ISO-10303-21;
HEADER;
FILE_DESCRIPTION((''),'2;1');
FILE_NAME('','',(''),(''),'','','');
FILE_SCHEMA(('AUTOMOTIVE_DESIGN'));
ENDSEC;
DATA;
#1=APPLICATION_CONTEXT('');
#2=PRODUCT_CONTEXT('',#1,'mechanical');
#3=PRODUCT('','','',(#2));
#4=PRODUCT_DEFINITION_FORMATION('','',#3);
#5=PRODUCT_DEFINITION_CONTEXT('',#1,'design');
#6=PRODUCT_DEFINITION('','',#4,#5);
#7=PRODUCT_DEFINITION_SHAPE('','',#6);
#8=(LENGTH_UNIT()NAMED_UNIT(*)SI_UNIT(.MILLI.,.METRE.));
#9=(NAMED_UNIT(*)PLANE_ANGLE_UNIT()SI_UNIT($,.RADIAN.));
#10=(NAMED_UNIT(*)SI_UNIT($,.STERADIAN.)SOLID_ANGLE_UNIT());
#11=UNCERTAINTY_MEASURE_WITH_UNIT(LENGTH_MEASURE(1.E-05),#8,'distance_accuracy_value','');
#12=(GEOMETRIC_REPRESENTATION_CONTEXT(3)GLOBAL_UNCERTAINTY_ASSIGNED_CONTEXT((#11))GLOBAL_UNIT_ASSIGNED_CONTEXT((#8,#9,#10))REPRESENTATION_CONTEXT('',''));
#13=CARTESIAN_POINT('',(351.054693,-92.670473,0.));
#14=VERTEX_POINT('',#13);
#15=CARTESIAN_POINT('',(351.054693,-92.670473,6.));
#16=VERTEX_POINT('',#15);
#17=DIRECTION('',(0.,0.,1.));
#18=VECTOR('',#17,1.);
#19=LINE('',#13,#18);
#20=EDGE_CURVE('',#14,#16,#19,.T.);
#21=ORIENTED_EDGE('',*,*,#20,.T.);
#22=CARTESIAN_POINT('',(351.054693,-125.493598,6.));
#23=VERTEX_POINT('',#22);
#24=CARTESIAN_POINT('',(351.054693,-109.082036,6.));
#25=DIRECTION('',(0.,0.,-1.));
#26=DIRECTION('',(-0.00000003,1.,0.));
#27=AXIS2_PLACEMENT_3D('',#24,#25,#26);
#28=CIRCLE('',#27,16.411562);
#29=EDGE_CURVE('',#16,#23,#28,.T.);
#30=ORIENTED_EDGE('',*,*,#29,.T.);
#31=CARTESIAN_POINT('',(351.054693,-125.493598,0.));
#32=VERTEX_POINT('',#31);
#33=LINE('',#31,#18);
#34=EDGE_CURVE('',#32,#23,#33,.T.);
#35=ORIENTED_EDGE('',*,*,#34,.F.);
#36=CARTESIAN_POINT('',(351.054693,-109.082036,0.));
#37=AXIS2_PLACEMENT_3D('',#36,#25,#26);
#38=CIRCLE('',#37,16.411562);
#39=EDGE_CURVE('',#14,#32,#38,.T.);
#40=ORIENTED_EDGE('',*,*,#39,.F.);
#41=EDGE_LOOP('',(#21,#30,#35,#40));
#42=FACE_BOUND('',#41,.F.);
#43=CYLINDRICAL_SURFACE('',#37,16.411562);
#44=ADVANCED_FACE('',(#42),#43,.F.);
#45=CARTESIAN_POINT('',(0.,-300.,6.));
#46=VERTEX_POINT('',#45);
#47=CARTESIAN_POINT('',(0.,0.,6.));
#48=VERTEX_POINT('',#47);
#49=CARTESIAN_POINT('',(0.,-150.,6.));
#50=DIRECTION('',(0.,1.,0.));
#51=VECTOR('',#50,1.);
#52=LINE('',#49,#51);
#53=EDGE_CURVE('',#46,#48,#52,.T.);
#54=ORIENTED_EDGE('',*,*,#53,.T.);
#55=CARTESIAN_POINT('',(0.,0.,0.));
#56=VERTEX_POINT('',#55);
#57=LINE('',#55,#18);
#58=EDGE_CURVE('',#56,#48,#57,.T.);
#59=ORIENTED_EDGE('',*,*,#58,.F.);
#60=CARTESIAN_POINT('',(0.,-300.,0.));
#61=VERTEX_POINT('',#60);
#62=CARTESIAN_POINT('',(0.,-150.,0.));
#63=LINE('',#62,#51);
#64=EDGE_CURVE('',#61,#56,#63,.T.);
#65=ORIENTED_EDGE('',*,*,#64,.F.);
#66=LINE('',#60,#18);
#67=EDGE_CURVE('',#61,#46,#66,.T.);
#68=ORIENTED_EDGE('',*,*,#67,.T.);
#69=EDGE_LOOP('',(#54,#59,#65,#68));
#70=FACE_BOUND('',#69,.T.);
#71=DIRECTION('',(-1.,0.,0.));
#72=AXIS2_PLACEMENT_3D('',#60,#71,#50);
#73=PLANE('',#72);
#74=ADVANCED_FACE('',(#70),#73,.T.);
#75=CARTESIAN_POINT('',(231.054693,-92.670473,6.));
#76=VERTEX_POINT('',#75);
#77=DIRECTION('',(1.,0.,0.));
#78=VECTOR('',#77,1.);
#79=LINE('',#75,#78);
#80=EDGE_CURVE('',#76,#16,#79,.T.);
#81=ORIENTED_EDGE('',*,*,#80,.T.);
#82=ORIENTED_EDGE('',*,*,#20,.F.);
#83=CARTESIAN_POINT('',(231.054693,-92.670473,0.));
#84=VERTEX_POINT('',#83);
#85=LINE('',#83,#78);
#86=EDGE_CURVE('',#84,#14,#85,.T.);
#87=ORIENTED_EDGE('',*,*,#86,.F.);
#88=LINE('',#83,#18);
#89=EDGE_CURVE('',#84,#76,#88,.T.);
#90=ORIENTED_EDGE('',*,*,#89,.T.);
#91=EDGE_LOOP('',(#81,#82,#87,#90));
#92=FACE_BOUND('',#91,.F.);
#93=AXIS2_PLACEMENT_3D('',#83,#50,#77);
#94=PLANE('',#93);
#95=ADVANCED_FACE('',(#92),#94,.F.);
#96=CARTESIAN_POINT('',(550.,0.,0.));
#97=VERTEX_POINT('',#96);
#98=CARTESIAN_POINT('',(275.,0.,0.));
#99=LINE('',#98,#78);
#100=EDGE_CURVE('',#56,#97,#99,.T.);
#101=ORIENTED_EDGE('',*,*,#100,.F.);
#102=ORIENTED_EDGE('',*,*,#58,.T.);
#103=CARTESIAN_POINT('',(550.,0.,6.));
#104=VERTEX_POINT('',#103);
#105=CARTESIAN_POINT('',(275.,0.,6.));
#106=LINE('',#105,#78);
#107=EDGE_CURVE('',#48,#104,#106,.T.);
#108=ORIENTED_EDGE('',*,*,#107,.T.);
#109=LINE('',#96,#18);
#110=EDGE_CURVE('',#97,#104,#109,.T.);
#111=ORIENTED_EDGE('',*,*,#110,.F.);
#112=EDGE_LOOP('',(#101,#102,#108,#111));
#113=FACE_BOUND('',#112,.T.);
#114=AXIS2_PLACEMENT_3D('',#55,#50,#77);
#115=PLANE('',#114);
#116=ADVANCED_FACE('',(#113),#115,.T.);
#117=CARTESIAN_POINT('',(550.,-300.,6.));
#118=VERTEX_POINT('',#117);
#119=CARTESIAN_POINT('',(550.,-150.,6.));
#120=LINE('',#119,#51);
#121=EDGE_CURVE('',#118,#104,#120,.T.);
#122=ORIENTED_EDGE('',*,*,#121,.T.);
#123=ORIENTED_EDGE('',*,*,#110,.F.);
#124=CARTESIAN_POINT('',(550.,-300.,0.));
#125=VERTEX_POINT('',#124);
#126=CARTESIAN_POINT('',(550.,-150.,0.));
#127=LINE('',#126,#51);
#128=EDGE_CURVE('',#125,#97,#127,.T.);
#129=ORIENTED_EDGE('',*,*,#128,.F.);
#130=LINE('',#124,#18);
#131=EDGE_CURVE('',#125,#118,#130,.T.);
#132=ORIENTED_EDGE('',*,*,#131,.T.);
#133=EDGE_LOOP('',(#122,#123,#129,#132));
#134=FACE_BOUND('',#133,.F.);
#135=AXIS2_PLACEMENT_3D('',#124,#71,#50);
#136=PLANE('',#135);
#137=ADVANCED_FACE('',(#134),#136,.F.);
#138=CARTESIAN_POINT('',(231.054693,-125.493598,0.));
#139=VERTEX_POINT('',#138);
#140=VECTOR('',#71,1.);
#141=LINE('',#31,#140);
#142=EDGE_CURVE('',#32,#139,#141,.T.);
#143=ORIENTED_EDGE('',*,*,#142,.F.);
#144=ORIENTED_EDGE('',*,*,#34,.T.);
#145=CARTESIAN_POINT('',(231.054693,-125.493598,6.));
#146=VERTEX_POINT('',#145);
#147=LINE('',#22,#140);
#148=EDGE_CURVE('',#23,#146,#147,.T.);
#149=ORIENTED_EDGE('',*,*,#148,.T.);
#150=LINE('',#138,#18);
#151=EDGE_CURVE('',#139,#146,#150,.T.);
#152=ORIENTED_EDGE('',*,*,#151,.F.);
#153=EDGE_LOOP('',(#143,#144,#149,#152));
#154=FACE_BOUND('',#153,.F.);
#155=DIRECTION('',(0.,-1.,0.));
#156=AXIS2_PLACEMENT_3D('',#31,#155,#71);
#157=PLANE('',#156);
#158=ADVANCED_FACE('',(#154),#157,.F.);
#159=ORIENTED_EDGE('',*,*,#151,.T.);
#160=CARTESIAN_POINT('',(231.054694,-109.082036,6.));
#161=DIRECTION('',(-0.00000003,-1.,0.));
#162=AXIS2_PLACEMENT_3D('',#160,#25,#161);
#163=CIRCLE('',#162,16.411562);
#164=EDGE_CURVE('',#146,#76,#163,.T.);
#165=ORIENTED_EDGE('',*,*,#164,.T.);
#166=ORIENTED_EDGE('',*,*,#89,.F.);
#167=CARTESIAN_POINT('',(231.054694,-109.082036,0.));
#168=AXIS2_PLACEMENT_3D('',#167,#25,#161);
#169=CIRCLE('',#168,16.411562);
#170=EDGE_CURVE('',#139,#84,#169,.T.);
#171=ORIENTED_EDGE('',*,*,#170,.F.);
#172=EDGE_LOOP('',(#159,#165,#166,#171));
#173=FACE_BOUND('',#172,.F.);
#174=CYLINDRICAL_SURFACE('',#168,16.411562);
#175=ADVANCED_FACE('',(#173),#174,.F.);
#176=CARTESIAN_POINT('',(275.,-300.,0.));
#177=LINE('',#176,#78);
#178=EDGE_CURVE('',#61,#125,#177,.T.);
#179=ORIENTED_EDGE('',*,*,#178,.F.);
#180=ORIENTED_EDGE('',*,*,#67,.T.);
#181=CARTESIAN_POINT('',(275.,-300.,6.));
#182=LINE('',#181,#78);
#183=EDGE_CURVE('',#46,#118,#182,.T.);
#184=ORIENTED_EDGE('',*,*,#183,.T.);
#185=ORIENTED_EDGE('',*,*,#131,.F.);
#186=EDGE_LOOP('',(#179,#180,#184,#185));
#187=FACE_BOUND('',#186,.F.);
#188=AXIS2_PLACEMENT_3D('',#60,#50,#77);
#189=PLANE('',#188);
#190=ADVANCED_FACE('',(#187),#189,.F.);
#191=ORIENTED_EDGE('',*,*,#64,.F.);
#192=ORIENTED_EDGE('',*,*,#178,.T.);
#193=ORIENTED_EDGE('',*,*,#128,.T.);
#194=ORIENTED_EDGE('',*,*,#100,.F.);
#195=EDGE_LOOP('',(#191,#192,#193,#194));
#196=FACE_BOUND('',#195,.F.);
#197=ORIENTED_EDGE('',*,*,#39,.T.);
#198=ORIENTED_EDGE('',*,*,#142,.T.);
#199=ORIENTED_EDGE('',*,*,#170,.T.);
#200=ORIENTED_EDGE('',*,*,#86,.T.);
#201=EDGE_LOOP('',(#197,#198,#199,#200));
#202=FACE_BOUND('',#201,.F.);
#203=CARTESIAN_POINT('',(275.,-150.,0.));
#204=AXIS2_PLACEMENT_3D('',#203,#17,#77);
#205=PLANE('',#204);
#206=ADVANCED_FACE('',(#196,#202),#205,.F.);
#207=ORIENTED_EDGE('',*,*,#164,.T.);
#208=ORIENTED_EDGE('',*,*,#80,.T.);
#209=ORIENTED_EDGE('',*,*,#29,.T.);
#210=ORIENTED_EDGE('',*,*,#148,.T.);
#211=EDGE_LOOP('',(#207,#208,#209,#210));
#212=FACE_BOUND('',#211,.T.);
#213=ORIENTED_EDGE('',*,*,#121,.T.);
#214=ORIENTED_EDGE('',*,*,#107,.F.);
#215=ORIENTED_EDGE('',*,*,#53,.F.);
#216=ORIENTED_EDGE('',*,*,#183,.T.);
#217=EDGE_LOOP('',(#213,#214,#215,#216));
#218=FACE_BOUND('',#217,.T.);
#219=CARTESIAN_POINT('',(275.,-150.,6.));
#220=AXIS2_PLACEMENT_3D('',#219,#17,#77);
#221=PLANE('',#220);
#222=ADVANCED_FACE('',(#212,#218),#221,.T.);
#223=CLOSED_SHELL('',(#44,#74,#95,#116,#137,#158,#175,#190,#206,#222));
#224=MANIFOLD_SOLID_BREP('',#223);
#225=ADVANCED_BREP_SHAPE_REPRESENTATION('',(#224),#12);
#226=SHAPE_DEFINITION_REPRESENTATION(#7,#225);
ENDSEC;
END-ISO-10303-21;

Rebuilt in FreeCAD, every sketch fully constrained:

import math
import FreeCAD as App
import Part
import Sketcher
from FreeCAD import Vector
Q = App.Units.Quantity


def add_polygon(sketch, points):
    """Adds a closed chain of lines whose ends are joined by coincident constraints."""
    first, n = sketch.GeometryCount, len(points)
    for a, b in zip(points, points[1:] + points[:1]):
        sketch.addGeometry(Part.LineSegment(App.Vector(*a, 0), App.Vector(*b, 0)), False)
    for i in range(n):
        sketch.addConstraint(Sketcher.Constraint("Coincident", first + i, 2, first + (i + 1) % n, 1))

doc = App.newDocument("Part")
params = doc.addObject("Spreadsheet::Sheet", "Params")
for row, (alias, value) in enumerate([
    ("sketch1_width", "550 mm"),
    ("sketch1_width2", "120 mm"),
    ("sketch1_height", "300 mm"),
    ("pad1_length", "6 mm"),
], start=1):
    params.set(f"A{row}", alias)
    params.set(f"B{row}", "=" + value)
    params.setAlias(f"B{row}", alias)

body = doc.addObject("PartDesign::Body", "Body")

# Sketch on XY plane
sketch1 = doc.addObject("Sketcher::SketchObject", "Sketch")
body.addObject(sketch1)
sketch1.AttachmentSupport = (doc.XY_Plane, [""])
sketch1.MapMode = "FlatFace"
add_polygon(sketch1, [(0, 0), (0, -300), (550, -300), (550, 0)])  # lines 0-3
sketch1.addGeometry(Part.LineSegment(Vector(351.054693, -125.493598, 0), Vector(231.054693, -125.493598, 0)), False)  # 4
sketch1.addGeometry(Part.ArcOfCircle(Part.Circle(Vector(231.054694, -109.082036, 0), Vector(0, 0, 1), 16.411562), math.radians(90.000002), math.radians(269.999998)), False)  # 5
sketch1.addGeometry(Part.LineSegment(Vector(231.054693, -92.670473, 0), Vector(351.054693, -92.670473, 0)), False)  # 6
sketch1.addGeometry(Part.ArcOfCircle(Part.Circle(Vector(351.054693, -109.082036, 0), Vector(0, 0, 1), 16.411562), math.radians(-90.000002), math.radians(90.000002)), False)  # 7
sketch1.addConstraint([
    Sketcher.Constraint("Tangent", 4, 2, 5, 2),
    Sketcher.Constraint("Tangent", 5, 1, 6, 1),
    Sketcher.Constraint("Tangent", 6, 2, 7, 2),
    Sketcher.Constraint("Tangent", 7, 1, 4, 1),
    Sketcher.Constraint("Vertical", 0),
    Sketcher.Constraint("Horizontal", 1),
    Sketcher.Constraint("Vertical", 2),
    Sketcher.Constraint("Horizontal", 3),
    Sketcher.Constraint("Horizontal", 4),
    Sketcher.Constraint("Horizontal", 6),
    Sketcher.Constraint("Coincident", 3, 2, -1, 1),
    Sketcher.Constraint("DistanceX", 1, 1, 1, 2, Q("550 mm")),
    Sketcher.Constraint("DistanceX", 4, 2, 4, 1, Q("120 mm")),
    Sketcher.Constraint("DistanceY", 0, 2, 0, 1, Q("300 mm")),
    Sketcher.Constraint("Radius", 5, Q("16.411562 mm")),
    Sketcher.Constraint("DistanceY", 4, 2, -1, 1, Q("125.493598 mm")),
    Sketcher.Constraint("DistanceX", -1, 1, 5, 3, Q("231.054694 mm")),
])
sketch1.setExpression("Constraints[15]", "Params.sketch1_width")
sketch1.setExpression("Constraints[16]", "Params.sketch1_width2")
sketch1.setExpression("Constraints[17]", "Params.sketch1_height")
pad1 = doc.addObject("PartDesign::Pad", "Pad")
body.addObject(pad1)
pad1.Profile = sketch1
pad1.setExpression("Length", "Params.pad1_length")

doc.recompute()
